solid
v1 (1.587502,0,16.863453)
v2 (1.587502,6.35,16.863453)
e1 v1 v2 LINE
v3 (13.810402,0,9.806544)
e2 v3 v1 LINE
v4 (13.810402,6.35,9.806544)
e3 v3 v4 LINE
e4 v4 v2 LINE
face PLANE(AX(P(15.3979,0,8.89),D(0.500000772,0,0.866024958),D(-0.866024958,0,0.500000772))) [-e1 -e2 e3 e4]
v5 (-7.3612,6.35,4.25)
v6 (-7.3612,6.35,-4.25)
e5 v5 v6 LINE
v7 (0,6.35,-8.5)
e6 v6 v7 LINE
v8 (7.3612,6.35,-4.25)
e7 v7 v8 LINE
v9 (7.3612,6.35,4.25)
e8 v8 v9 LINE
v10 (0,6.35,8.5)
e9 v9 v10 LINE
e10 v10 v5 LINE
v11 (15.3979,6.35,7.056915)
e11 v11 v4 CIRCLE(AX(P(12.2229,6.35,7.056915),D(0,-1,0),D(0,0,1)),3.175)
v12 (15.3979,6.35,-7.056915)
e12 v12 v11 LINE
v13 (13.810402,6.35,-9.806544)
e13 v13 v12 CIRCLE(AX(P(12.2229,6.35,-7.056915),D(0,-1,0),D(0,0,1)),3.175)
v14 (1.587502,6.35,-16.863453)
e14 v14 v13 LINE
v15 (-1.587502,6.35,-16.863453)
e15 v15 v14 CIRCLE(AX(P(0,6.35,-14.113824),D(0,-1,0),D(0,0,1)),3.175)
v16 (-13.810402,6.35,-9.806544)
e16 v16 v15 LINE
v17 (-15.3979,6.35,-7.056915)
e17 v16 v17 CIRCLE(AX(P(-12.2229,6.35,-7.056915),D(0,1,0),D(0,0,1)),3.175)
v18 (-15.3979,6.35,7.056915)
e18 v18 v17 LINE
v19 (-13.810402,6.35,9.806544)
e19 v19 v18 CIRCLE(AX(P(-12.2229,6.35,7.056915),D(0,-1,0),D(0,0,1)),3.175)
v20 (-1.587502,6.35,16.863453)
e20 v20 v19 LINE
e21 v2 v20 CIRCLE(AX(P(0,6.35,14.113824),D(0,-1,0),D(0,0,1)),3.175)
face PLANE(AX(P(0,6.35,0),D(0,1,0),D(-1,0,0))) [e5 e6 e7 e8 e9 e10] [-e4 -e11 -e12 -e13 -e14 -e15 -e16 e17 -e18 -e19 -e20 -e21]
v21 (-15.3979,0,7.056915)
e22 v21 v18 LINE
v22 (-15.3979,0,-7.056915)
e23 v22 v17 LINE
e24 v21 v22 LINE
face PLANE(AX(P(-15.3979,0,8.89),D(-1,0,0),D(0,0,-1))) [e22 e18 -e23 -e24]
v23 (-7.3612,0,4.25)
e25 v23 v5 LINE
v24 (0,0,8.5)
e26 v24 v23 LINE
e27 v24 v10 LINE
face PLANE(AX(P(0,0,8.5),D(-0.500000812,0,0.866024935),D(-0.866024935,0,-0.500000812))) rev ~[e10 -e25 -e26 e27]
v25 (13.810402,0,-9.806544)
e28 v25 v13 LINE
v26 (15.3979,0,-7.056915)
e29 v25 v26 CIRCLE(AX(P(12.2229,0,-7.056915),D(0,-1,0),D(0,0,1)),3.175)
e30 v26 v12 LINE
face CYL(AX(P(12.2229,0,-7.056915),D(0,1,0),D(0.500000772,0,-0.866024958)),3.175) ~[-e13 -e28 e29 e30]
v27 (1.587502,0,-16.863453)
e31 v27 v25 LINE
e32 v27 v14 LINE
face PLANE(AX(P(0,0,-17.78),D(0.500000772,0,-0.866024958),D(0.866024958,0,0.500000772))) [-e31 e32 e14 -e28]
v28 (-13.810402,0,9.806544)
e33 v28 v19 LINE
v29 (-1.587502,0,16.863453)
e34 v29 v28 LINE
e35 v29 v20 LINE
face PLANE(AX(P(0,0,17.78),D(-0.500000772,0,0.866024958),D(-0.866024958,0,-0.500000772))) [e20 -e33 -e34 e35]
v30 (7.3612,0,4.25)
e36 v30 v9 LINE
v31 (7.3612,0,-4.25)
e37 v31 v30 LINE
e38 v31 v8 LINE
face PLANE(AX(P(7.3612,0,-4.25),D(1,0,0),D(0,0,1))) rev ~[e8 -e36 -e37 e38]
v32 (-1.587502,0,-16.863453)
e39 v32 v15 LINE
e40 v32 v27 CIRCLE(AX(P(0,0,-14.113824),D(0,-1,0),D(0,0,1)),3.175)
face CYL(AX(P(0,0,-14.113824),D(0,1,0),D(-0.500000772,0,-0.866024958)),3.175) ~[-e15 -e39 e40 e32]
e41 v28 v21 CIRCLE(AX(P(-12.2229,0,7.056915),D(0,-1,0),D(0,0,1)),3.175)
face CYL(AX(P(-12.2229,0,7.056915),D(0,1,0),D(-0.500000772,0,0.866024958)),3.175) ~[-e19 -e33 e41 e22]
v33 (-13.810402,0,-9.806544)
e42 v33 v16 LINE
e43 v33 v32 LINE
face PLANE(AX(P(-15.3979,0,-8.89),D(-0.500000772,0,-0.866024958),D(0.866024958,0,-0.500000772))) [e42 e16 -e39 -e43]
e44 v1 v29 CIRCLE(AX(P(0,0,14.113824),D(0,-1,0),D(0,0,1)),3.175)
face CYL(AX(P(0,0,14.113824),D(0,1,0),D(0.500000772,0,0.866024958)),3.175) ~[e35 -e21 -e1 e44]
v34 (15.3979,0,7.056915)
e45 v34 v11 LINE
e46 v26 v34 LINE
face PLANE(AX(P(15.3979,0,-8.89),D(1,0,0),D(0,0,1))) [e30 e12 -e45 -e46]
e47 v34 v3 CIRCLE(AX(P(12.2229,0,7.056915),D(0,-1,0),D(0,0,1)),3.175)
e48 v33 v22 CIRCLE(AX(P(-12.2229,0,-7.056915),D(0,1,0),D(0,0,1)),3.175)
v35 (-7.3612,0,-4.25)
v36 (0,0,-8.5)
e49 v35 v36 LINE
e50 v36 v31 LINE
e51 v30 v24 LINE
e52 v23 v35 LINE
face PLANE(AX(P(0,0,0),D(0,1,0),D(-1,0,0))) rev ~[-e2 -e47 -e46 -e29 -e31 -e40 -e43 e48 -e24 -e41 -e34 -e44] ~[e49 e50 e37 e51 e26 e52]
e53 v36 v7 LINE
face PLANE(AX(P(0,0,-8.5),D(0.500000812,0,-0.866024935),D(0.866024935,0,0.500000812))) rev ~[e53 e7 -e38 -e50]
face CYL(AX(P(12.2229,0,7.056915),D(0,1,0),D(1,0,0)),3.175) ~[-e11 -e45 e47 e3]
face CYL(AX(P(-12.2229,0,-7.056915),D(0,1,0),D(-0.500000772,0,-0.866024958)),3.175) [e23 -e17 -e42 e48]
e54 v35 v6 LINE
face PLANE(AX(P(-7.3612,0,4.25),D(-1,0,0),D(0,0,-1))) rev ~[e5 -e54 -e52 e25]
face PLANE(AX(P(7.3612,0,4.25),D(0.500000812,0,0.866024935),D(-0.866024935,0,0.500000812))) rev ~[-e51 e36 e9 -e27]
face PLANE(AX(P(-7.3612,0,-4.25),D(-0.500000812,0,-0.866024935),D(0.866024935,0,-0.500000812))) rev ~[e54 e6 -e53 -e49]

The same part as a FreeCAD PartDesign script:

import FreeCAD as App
import Part
import Sketcher

V = App.Vector
Q = App.Units.Quantity


def edges_at(feature, points):
    """Names of the edges that pass closest to the given points."""
    edges = feature.Shape.Edges
    near = lambda p: min(range(len(edges)), key=lambda i: edges[i].distToShape(Part.Vertex(*p))[0])
    return sorted({f"Edge{near(p) + 1}" for p in points})


def add_polygon(sketch, points):
    """Adds a closed chain of lines whose ends are joined by coincident constraints."""
    first, n = sketch.GeometryCount, len(points)
    for a, b in zip(points, points[1:] + points[:1]):
        sketch.addGeometry(Part.LineSegment(App.Vector(*a, 0), App.Vector(*b, 0)), False)
    for i in range(n):
        sketch.addConstraint(Sketcher.Constraint("Coincident", first + i, 2, first + (i + 1) % n, 1))

doc = App.newDocument("Part")
params = doc.addObject("Spreadsheet::Sheet", "Params")
for row, (alias, value) in enumerate([
    ("sketch1_height", "0.7 in"),
    ("sketch1_length", "0.7 in"),
    ("pad1_length", "0.25 in"),
    ("fillet_radius", "0.125 in"),
], start=1):
    params.set(f"A{row}", alias)
    params.set(f"B{row}", "=" + value)
    params.setAlias(f"B{row}", alias)

body = doc.addObject("PartDesign::Body", "Body")

# Sketch on XZ plane
sketch1 = body.newObject("Sketcher::SketchObject", "Sketch")
sketch1.AttachmentSupport = (doc.getObject("XZ_Plane"), [""])
sketch1.MapMode = "FlatFace"
add_polygon(sketch1, [(0, -18), (-15, -9), (-15, 9), (0, 18), (15, 9), (15, -9)])  # lines 0-5
add_polygon(sketch1, [(-7, 4), (-7, -4), (0, -8), (7, -4), (7, 4), (0, 8)])  # lines 6-11
sketch1.addConstraint(Sketcher.Constraint("Vertical", 1))
sketch1.addConstraint(Sketcher.Constraint("Vertical", 4))
sketch1.addConstraint(Sketcher.Constraint("Vertical", 6))
sketch1.addConstraint(Sketcher.Constraint("Vertical", 9))
sketch1.addConstraint(Sketcher.Constraint("Symmetric", 0, 2, 3, 2, -1, 1))
sketch1.addConstraint(Sketcher.Constraint("Symmetric", 2, 2, 5, 2, -1, 1))
sketch1.addConstraint(Sketcher.Constraint("Symmetric", 6, 2, 9, 2, -1, 1))
sketch1.addConstraint(Sketcher.Constraint("Symmetric", 7, 2, 10, 2, -1, 1))
sketch1.addConstraint(Sketcher.Constraint("PointOnObject", 2, 2, -2))
sketch1.addConstraint(Sketcher.Constraint("PointOnObject", 7, 2, -2))
sketch1.addConstraint(Sketcher.Constraint("Parallel", 2, 5))
sketch1.addConstraint(Sketcher.Constraint("Parallel", 3, 7))
sketch1.addConstraint(Sketcher.Constraint("Parallel", 5, 8))
sketch1.addConstraint(Sketcher.Constraint("Parallel", 8, 11))
sketch1.addConstraint(Sketcher.Constraint("Horizontal", 1, 2, 3, 2))
sketch1.addConstraint(Sketcher.Constraint("DistanceY", 1, 1, 1, 2, Q("0.7 in")))
sketch1.addConstraint(Sketcher.Constraint("Distance", 0, Q("0.7 in")))
sketch1.addConstraint(Sketcher.Constraint("DistanceY", -1, 1, 2, 2, Q("0.7 in")))
sketch1.addConstraint(Sketcher.Constraint("DistanceY", 6, 2, 6, 1, Q("8.5 mm")))
sketch1.addConstraint(Sketcher.Constraint("Distance", 7, Q("8.5 mm")))
sketch1.setExpression("Constraints[27]", "Params.sketch1_height")
sketch1.setExpression("Constraints[28]", "Params.sketch1_length")
pad1 = body.newObject("PartDesign::Pad", "Pad")
pad1.Profile = sketch1
pad1.setExpression("Length", "Params.pad1_length")
pad1.Reversed = True
doc.recompute()

fillet = body.newObject("PartDesign::Fillet", "Fillet")
fillet.Base = (pad1, edges_at(pad1, [
    (-15.398, 3.175, 8.89),
    (0, 3.175, 17.78),
    (15.398, 3.175, 8.89),
    (15.398, 3.175, -8.89),
    (0, 3.175, -17.78),
    (-15.398, 3.175, -8.89),
]))
fillet.setExpression("Radius", "Params.fillet_radius")

doc.recompute()
